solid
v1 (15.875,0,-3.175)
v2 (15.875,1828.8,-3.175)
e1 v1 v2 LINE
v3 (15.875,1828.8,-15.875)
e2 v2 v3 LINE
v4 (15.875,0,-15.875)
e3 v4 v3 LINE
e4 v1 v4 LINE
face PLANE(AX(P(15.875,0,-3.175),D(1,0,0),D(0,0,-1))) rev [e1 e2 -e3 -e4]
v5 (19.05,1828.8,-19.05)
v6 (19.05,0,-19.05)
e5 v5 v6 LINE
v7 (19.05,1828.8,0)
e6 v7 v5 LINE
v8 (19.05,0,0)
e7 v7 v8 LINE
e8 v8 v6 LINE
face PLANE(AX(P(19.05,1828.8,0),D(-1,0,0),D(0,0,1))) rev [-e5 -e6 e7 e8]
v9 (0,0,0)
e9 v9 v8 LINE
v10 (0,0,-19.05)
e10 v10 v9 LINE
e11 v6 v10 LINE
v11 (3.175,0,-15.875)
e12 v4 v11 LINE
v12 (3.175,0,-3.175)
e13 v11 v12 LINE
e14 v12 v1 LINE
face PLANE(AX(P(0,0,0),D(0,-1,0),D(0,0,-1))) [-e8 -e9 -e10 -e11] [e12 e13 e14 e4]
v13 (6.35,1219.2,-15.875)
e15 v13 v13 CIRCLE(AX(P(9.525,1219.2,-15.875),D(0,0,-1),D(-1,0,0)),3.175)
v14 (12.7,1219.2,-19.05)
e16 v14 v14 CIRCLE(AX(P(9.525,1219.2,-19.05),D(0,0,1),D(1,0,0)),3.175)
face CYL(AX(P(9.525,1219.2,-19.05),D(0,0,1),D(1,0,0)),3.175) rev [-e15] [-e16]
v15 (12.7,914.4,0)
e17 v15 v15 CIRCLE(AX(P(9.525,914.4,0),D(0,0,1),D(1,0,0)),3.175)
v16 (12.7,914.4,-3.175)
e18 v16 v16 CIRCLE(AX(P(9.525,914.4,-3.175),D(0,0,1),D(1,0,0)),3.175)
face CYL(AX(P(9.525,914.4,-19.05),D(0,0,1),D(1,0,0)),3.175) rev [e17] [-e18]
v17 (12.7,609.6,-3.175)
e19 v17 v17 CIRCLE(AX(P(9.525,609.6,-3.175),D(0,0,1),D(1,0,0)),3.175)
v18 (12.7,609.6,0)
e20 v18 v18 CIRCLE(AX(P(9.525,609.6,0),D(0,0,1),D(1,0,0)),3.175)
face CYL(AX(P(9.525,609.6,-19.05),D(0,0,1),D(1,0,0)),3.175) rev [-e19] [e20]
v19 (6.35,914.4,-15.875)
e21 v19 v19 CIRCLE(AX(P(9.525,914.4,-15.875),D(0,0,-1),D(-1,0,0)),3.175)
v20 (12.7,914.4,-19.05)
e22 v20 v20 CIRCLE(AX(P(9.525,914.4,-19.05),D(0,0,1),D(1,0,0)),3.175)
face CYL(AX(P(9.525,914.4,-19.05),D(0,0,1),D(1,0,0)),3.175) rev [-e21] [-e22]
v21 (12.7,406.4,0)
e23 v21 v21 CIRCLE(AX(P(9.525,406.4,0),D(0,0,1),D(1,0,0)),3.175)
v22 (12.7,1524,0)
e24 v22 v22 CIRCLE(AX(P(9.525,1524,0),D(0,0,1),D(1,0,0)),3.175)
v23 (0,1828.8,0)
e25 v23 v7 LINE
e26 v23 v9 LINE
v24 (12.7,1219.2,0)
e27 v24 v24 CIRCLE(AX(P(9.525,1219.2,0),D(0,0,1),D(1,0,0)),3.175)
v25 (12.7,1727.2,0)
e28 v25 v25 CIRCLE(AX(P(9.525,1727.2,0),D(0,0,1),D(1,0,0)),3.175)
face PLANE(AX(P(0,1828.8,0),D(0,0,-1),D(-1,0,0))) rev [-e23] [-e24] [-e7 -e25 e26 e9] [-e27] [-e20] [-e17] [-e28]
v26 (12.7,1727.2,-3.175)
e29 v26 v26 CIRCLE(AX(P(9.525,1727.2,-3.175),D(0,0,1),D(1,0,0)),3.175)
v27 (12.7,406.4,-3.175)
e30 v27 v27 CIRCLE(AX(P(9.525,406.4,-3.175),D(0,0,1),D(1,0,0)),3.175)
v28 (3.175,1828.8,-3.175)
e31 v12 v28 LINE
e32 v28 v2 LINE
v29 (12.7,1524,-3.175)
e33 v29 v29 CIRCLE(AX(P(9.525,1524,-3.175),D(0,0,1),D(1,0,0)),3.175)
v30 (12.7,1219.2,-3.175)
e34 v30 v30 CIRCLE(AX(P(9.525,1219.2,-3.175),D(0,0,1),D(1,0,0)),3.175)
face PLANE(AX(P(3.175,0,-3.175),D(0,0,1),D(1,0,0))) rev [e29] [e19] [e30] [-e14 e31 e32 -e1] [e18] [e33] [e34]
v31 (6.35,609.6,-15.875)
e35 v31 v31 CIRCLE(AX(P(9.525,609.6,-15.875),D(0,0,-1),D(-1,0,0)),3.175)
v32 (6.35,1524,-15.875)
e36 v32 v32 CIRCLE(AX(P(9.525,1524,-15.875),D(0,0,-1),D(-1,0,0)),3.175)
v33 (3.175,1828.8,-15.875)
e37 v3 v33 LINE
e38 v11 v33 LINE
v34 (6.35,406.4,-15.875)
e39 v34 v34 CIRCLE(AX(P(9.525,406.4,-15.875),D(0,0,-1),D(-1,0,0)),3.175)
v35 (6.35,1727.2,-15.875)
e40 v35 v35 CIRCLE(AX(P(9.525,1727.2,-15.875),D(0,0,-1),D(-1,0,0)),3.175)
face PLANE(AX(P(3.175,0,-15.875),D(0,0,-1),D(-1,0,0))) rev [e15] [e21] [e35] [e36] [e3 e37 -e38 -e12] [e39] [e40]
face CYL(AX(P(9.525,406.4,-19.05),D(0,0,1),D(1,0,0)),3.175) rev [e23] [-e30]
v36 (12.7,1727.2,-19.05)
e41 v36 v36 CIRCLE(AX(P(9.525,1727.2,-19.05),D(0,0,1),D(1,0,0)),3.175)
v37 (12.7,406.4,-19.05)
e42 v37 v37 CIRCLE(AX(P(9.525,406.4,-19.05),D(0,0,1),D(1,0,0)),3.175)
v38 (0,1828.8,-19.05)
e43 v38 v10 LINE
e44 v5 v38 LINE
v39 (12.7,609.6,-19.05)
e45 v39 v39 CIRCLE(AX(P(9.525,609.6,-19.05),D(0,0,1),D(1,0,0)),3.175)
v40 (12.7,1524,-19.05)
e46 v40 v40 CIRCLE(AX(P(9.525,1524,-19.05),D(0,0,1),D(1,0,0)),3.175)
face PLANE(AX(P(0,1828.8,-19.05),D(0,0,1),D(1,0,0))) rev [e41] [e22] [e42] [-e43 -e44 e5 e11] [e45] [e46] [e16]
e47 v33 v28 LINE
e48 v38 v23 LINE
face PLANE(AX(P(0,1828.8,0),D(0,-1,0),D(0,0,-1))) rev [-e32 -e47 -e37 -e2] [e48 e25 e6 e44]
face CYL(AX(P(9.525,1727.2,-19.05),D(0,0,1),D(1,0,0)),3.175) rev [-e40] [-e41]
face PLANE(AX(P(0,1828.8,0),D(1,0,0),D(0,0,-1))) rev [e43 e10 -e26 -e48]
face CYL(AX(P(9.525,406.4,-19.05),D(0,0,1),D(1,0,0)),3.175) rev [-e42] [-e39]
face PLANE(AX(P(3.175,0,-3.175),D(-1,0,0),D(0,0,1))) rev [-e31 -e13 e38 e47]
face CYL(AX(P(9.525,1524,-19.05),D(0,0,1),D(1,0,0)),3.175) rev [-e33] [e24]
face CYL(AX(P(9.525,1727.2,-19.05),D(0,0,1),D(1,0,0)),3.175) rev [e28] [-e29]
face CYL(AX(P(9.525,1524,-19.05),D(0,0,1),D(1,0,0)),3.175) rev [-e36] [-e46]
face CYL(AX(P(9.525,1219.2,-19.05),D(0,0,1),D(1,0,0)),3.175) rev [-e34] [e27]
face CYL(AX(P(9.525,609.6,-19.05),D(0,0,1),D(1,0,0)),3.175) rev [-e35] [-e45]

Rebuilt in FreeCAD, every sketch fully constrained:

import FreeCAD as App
import Part
import Sketcher
Q = App.Units.Quantity

doc = App.newDocument("Part")
body = doc.addObject("PartDesign::Body", "Body")

# Sketch on XZ plane
sketch1 = body.newObject("Sketcher::SketchObject", "Sketch")
sketch1.AttachmentSupport = (doc.getObject("XZ_Plane"), [""])
sketch1.MapMode = "FlatFace"
sketch1.addGeometry([
    Part.LineSegment(App.Vector(0, -19, 0), App.Vector(0, 0, 0)),
    Part.LineSegment(App.Vector(0, 0, 0), App.Vector(19, 0, 0)),
    Part.LineSegment(App.Vector(19, 0, 0), App.Vector(19, -19, 0)),
    Part.LineSegment(App.Vector(19, -19, 0), App.Vector(0, -19, 0)),
], False)
sketch1.addConstraint([
    Sketcher.Constraint("Coincident", 0, 2, 1, 1),
    Sketcher.Constraint("Coincident", 1, 2, 2, 1),
    Sketcher.Constraint("Coincident", 2, 2, 3, 1),
    Sketcher.Constraint("Coincident", 3, 2, 0, 1),
    Sketcher.Constraint("Vertical", 0),
    Sketcher.Constraint("Horizontal", 1),
    Sketcher.Constraint("Vertical", 2),
    Sketcher.Constraint("Horizontal", 3),
    Sketcher.Constraint("Coincident", 0, 2, -1, 1),
    Sketcher.Constraint("Equal", 3, 0),
    Sketcher.Constraint("DistanceX", 1, 1, 1, 2, Q("0.75 in")),
])
pad1 = body.newObject("PartDesign::Pad", "Pad")
pad1.Profile = sketch1
pad1.Length = Q("72 in")
pad1.Reversed = True

# Sketch on XZ plane
sketch2 = body.newObject("Sketcher::SketchObject", "Sketch001")
sketch2.AttachmentSupport = (doc.getObject("XZ_Plane"), [""])
sketch2.MapMode = "FlatFace"
sketch2.AttachmentOffset = App.Placement(App.Vector(0, 0, -72 * 25.4), App.Rotation())
sketch2.addGeometry([
    Part.LineSegment(App.Vector(3, -16, 0), App.Vector(3, -3, 0)),
    Part.LineSegment(App.Vector(3, -3, 0), App.Vector(16, -3, 0)),
    Part.LineSegment(App.Vector(16, -3, 0), App.Vector(16, -16, 0)),
    Part.LineSegment(App.Vector(16, -16, 0), App.Vector(3, -16, 0)),
], False)
sketch2.addConstraint([
    Sketcher.Constraint("Coincident", 0, 2, 1, 1),
    Sketcher.Constraint("Coincident", 1, 2, 2, 1),
    Sketcher.Constraint("Coincident", 2, 2, 3, 1),
    Sketcher.Constraint("Coincident", 3, 2, 0, 1),
    Sketcher.Constraint("Vertical", 0),
    Sketcher.Constraint("Horizontal", 1),
    Sketcher.Constraint("Vertical", 2),
    Sketcher.Constraint("Horizontal", 3),
    Sketcher.Constraint("Equal", 3, 0),
    Sketcher.Constraint("DistanceX", 1, 1, 1, 2, Q("0.5 in")),
    Sketcher.Constraint("DistanceX", -1, 1, 0, 2, Q("0.125 in")),
    Sketcher.Constraint("DistanceY", 0, 2, -1, 1, Q("0.125 in")),
])
pocket1 = body.newObject("PartDesign::Pocket", "Pocket")
pocket1.Profile = sketch2
pocket1.Type = "ThroughAll"
pocket1.Reversed = True

# Sketch on XY plane
sketch3 = body.newObject("Sketcher::SketchObject", "Sketch002")
sketch3.AttachmentSupport = (doc.getObject("XY_Plane"), [""])
sketch3.MapMode = "FlatFace"
sketch3.addGeometry([
    Part.Circle(App.Vector(9.5, 1727.2, 0), App.Vector(0, 0, 1), 3.2),  # 0
    Part.Circle(App.Vector(9.5, 1524, 0), App.Vector(0, 0, 1), 3.2),  # 1
    Part.Circle(App.Vector(9.5, 1219.2, 0), App.Vector(0, 0, 1), 3.2),  # 2
    Part.Circle(App.Vector(9.5, 914.4, 0), App.Vector(0, 0, 1), 3.2),  # 3
    Part.Circle(App.Vector(9.5, 406.4, 0), App.Vector(0, 0, 1), 3.2),  # 4
    Part.Circle(App.Vector(9.5, 609.6, 0), App.Vector(0, 0, 1), 3.2),  # 5
], False)
sketch3.addConstraint([
    Sketcher.Constraint("Equal", 0, 1),
    Sketcher.Constraint("Equal", 1, 2),
    Sketcher.Constraint("Equal", 2, 3),
    Sketcher.Constraint("Equal", 3, 4),
    Sketcher.Constraint("Equal", 4, 5),
    Sketcher.Constraint("Vertical", 0, 3, 1, 3),
    Sketcher.Constraint("Vertical", 1, 3, 2, 3),
    Sketcher.Constraint("Vertical", 2, 3, 3, 3),
    Sketcher.Constraint("Vertical", 3, 3, 4, 3),
    Sketcher.Constraint("Vertical", 4, 3, 5, 3),
    Sketcher.Constraint("Diameter", 0, Q("0.25 in")),
    Sketcher.Constraint("DistanceY", -1, 1, 0, 3, Q("68 in")),
    Sketcher.Constraint("DistanceY", -1, 1, 1, 3, Q("60 in")),
    Sketcher.Constraint("DistanceY", -1, 1, 2, 3, Q("48 in")),
    Sketcher.Constraint("DistanceY", -1, 1, 3, 3, Q("36 in")),
    Sketcher.Constraint("DistanceY", -1, 1, 4, 3, Q("16 in")),
    Sketcher.Constraint("DistanceY", -1, 1, 5, 3, Q("24 in")),
    Sketcher.Constraint("DistanceX", -1, 1, 0, 3, Q("0.375 in")),
])
pocket2 = body.newObject("PartDesign::Pocket", "Pocket001")
pocket2.Profile = sketch3
pocket2.Type = "ThroughAll"

doc.recompute()
